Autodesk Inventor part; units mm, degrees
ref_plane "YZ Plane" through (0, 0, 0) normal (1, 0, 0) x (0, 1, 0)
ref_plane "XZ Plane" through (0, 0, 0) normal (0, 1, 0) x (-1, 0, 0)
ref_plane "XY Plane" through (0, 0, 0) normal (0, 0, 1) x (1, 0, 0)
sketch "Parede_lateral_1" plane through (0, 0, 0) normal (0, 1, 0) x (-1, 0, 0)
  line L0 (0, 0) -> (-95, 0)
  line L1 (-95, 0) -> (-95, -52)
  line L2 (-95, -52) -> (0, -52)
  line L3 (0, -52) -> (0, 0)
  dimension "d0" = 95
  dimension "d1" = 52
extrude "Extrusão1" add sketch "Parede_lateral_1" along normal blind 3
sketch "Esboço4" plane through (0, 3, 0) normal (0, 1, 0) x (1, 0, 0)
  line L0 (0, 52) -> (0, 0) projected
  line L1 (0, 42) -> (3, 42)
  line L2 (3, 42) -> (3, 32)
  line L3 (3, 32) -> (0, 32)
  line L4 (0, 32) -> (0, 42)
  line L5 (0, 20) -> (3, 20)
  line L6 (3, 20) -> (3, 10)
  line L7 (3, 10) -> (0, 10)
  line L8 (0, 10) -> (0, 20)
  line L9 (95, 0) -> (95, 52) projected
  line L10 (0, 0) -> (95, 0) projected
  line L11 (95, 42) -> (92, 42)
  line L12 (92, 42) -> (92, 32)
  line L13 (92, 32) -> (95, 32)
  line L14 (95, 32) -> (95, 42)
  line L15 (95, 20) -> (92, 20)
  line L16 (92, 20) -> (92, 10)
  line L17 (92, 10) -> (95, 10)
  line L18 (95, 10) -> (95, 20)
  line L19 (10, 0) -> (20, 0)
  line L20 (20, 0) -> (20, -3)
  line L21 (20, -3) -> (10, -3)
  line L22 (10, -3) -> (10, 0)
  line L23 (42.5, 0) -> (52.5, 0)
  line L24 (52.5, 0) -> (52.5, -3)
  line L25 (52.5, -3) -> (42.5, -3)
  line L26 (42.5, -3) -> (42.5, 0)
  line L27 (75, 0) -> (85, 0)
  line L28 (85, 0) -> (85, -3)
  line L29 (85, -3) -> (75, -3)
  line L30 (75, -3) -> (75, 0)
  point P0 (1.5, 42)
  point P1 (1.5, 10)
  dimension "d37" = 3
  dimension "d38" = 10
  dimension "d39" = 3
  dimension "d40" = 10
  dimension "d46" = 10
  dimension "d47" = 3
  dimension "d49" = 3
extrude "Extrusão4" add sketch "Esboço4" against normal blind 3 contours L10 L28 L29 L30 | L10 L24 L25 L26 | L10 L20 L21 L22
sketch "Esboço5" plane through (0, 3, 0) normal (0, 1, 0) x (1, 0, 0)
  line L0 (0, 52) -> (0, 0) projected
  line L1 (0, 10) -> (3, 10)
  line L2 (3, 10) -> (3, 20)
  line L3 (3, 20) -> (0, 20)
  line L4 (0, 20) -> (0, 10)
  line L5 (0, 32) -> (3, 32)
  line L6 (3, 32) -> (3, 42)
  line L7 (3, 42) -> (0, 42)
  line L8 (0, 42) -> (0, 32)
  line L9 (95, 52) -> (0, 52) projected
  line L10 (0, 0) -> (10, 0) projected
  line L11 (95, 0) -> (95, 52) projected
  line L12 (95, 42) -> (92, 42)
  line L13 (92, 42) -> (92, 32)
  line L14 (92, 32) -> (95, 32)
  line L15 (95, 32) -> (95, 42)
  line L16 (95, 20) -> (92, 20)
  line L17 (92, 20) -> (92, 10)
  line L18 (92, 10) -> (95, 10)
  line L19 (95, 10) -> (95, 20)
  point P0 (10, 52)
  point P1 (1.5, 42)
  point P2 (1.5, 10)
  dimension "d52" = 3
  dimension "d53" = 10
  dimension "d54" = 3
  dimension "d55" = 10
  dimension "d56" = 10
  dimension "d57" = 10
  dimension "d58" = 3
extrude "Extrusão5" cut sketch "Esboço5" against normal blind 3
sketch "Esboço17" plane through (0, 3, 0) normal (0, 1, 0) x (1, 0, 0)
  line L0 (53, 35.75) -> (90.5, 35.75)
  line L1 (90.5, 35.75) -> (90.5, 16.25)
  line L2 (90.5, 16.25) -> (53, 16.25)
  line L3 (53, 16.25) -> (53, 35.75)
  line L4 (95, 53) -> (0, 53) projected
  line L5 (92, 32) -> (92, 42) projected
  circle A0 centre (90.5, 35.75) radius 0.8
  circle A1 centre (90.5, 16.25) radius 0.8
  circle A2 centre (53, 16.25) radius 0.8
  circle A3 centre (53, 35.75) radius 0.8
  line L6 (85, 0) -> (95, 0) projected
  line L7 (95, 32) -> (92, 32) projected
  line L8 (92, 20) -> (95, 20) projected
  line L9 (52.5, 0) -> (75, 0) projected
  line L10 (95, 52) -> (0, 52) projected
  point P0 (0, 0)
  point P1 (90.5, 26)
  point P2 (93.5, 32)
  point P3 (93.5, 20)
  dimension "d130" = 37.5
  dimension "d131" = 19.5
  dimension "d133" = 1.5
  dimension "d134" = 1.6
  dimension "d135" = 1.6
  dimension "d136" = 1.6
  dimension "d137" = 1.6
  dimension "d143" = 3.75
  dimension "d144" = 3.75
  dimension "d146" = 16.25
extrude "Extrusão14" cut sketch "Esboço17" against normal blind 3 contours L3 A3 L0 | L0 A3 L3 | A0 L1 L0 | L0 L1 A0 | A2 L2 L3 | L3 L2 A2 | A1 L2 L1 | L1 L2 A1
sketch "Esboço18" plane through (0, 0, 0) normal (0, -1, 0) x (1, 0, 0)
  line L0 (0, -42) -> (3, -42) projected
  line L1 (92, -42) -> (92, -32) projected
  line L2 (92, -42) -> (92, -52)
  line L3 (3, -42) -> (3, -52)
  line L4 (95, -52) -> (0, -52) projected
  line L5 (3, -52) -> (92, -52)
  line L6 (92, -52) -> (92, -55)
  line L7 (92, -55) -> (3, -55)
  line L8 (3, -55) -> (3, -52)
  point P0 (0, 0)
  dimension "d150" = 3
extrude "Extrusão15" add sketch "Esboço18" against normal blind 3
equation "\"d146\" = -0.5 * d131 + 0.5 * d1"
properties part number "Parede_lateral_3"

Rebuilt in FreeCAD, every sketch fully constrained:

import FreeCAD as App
import Part
import Sketcher

V = App.Vector
Q = App.Units.Quantity

doc = App.newDocument("Part")
body = doc.addObject("PartDesign::Body", "Body")

# Sketch on XZ plane
sketch1 = doc.addObject("Sketcher::SketchObject", "Sketch")
body.addObject(sketch1)
sketch1.AttachmentSupport = (doc.XZ_Plane, [""])
sketch1.MapMode = "FlatFace"
sketch1.addGeometry(Part.LineSegment(V(0, -52, 0), V(0, 0, 0)), False)
sketch1.addGeometry(Part.LineSegment(V(0, 0, 0), V(95, 0, 0)), False)
sketch1.addGeometry(Part.LineSegment(V(95, 0, 0), V(95, -52, 0)), False)
sketch1.addGeometry(Part.LineSegment(V(95, -52, 0), V(0, -52, 0)), False)
sketch1.addConstraint(Sketcher.Constraint("Coincident", 0, 2, 1, 1))
sketch1.addConstraint(Sketcher.Constraint("Coincident", 1, 2, 2, 1))
sketch1.addConstraint(Sketcher.Constraint("Coincident", 2, 2, 3, 1))
sketch1.addConstraint(Sketcher.Constraint("Coincident", 3, 2, 0, 1))
sketch1.addConstraint(Sketcher.Constraint("Vertical", 0))
sketch1.addConstraint(Sketcher.Constraint("Horizontal", 1))
sketch1.addConstraint(Sketcher.Constraint("Vertical", 2))
sketch1.addConstraint(Sketcher.Constraint("Horizontal", 3))
sketch1.addConstraint(Sketcher.Constraint("Coincident", 0, 2, -1, 1))
sketch1.addConstraint(Sketcher.Constraint("DistanceX", 1, 1, 1, 2, Q("95 mm")))
sketch1.addConstraint(Sketcher.Constraint("DistanceY", 0, 1, 0, 2, Q("52 mm")))
pad1 = doc.addObject("PartDesign::Pad", "Pad")
body.addObject(pad1)
pad1.Profile = sketch1
pad1.Length = 3
pad1.Reversed = True

# Sketch on XZ plane
sketch2 = doc.addObject("Sketcher::SketchObject", "Sketch001")
body.addObject(sketch2)
sketch2.AttachmentSupport = (doc.XZ_Plane, [""])
sketch2.MapMode = "FlatFace"
sketch2.AttachmentOffset = App.Placement(V(0, 0, -3), App.Rotation())
sketch2.addGeometry(Part.LineSegment(V(85, 0, 0), V(75, 0, 0)), False)
sketch2.addGeometry(Part.LineSegment(V(75, 0, 0), V(75, 3, 0)), False)
sketch2.addGeometry(Part.LineSegment(V(75, 3, 0), V(85, 3, 0)), False)
sketch2.addGeometry(Part.LineSegment(V(85, 3, 0), V(85, 0, 0)), False)
sketch2.addGeometry(Part.LineSegment(V(52.5, 0, 0), V(42.5, 0, 0)), False)
sketch2.addGeometry(Part.LineSegment(V(42.5, 0, 0), V(42.5, 3, 0)), False)
sketch2.addGeometry(Part.LineSegment(V(42.5, 3, 0), V(52.5, 3, 0)), False)
sketch2.addGeometry(Part.LineSegment(V(52.5, 3, 0), V(52.5, 0, 0)), False)
sketch2.addGeometry(Part.LineSegment(V(20, 0, 0), V(10, 0, 0)), False)
sketch2.addGeometry(Part.LineSegment(V(10, 0, 0), V(10, 3, 0)), False)
sketch2.addGeometry(Part.LineSegment(V(10, 3, 0), V(20, 3, 0)), False)
sketch2.addGeometry(Part.LineSegment(V(20, 3, 0), V(20, 0, 0)), False)
sketch2.addConstraint(Sketcher.Constraint("Coincident", 0, 2, 1, 1))
sketch2.addConstraint(Sketcher.Constraint("Coincident", 1, 2, 2, 1))
sketch2.addConstraint(Sketcher.Constraint("Coincident", 2, 2, 3, 1))
sketch2.addConstraint(Sketcher.Constraint("Coincident", 3, 2, 0, 1))
sketch2.addConstraint(Sketcher.Constraint("Coincident", 4, 2, 5, 1))
sketch2.addConstraint(Sketcher.Constraint("Coincident", 5, 2, 6, 1))
sketch2.addConstraint(Sketcher.Constraint("Coincident", 6, 2, 7, 1))
sketch2.addConstraint(Sketcher.Constraint("Coincident", 7, 2, 4, 1))
sketch2.addConstraint(Sketcher.Constraint("Coincident", 8, 2, 9, 1))
sketch2.addConstraint(Sketcher.Constraint("Coincident", 9, 2, 10, 1))
sketch2.addConstraint(Sketcher.Constraint("Coincident", 10, 2, 11, 1))
sketch2.addConstraint(Sketcher.Constraint("Coincident", 11, 2, 8, 1))
sketch2.addConstraint(Sketcher.Constraint("Horizontal", 0))
sketch2.addConstraint(Sketcher.Constraint("Vertical", 1))
sketch2.addConstraint(Sketcher.Constraint("Horizontal", 2))
sketch2.addConstraint(Sketcher.Constraint("Vertical", 3))
sketch2.addConstraint(Sketcher.Constraint("Horizontal", 4))
sketch2.addConstraint(Sketcher.Constraint("Vertical", 5))
sketch2.addConstraint(Sketcher.Constraint("Horizontal", 6))
sketch2.addConstraint(Sketcher.Constraint("Vertical", 7))
sketch2.addConstraint(Sketcher.Constraint("Horizontal", 8))
sketch2.addConstraint(Sketcher.Constraint("Vertical", 9))
sketch2.addConstraint(Sketcher.Constraint("Horizontal", 10))
sketch2.addConstraint(Sketcher.Constraint("Vertical", 11))
sketch2.addConstraint(Sketcher.Constraint("PointOnObject", 0, 2, -1))
sketch2.addConstraint(Sketcher.Constraint("PointOnObject", 4, 2, -1))
sketch2.addConstraint(Sketcher.Constraint("PointOnObject", 8, 2, -1))
sketch2.addConstraint(Sketcher.Constraint("Horizontal", 2, 2, 5, 2))
sketch2.addConstraint(Sketcher.Constraint("Horizontal", 6, 2, 9, 2))
sketch2.addConstraint(Sketcher.Constraint("Equal", 2, 4))
sketch2.addConstraint(Sketcher.Constraint("Equal", 6, 8))
sketch2.addConstraint(Sketcher.Constraint("DistanceX", 0, 2, 0, 1, Q("10 mm")))
sketch2.addConstraint(Sketcher.Constraint("DistanceY", 1, 1, 1, 2, Q("3 mm")))
sketch2.addConstraint(Sketcher.Constraint("DistanceX", -1, 1, 8, 2, Q("10 mm")))
sketch2.addConstraint(Sketcher.Constraint("DistanceX", -1, 1, 0, 2, Q("75 mm")))
sketch2.addConstraint(Sketcher.Constraint("DistanceX", -1, 1, 4, 2, Q("42.5 mm")))
pad2 = doc.addObject("PartDesign::Pad", "Pad001")
body.addObject(pad2)
pad2.Profile = sketch2
pad2.Length = 3

# Sketch on XZ plane
sketch3 = doc.addObject("Sketcher::SketchObject", "Sketch002")
body.addObject(sketch3)
sketch3.AttachmentSupport = (doc.XZ_Plane, [""])
sketch3.MapMode = "FlatFace"
sketch3.AttachmentOffset = App.Placement(V(0, 0, -3), App.Rotation())
sketch3.addGeometry(Part.LineSegment(V(3, -20, 0), V(0, -20, 0)), False)
sketch3.addGeometry(Part.LineSegment(V(0, -20, 0), V(0, -10, 0)), False)
sketch3.addGeometry(Part.LineSegment(V(0, -10, 0), V(3, -10, 0)), False)
sketch3.addGeometry(Part.LineSegment(V(3, -10, 0), V(3, -20, 0)), False)
sketch3.addGeometry(Part.LineSegment(V(3, -42, 0), V(0, -42, 0)), False)
sketch3.addGeometry(Part.LineSegment(V(0, -42, 0), V(0, -32, 0)), False)
sketch3.addGeometry(Part.LineSegment(V(0, -32, 0), V(3, -32, 0)), False)
sketch3.addGeometry(Part.LineSegment(V(3, -32, 0), V(3, -42, 0)), False)
sketch3.addGeometry(Part.LineSegment(V(95, -10, 0), V(95, -20, 0)), False)
sketch3.addGeometry(Part.LineSegment(V(95, -20, 0), V(92, -20, 0)), False)
sketch3.addGeometry(Part.LineSegment(V(92, -20, 0), V(92, -10, 0)), False)
sketch3.addGeometry(Part.LineSegment(V(92, -10, 0), V(95, -10, 0)), False)
sketch3.addGeometry(Part.LineSegment(V(95, -32, 0), V(95, -42, 0)), False)
sketch3.addGeometry(Part.LineSegment(V(95, -42, 0), V(92, -42, 0)), False)
sketch3.addGeometry(Part.LineSegment(V(92, -42, 0), V(92, -32, 0)), False)
sketch3.addGeometry(Part.LineSegment(V(92, -32, 0), V(95, -32, 0)), False)
sketch3.addConstraint(Sketcher.Constraint("Coincident", 0, 2, 1, 1))
sketch3.addConstraint(Sketcher.Constraint("Coincident", 1, 2, 2, 1))
sketch3.addConstraint(Sketcher.Constraint("Coincident", 2, 2, 3, 1))
sketch3.addConstraint(Sketcher.Constraint("Coincident", 3, 2, 0, 1))
sketch3.addConstraint(Sketcher.Constraint("Coincident", 4, 2, 5, 1))
sketch3.addConstraint(Sketcher.Constraint("Coincident", 5, 2, 6, 1))
sketch3.addConstraint(Sketcher.Constraint("Coincident", 6, 2, 7, 1))
sketch3.addConstraint(Sketcher.Constraint("Coincident", 7, 2, 4, 1))
sketch3.addConstraint(Sketcher.Constraint("Coincident", 8, 2, 9, 1))
sketch3.addConstraint(Sketcher.Constraint("Coincident", 9, 2, 10, 1))
sketch3.addConstraint(Sketcher.Constraint("Coincident", 10, 2, 11, 1))
sketch3.addConstraint(Sketcher.Constraint("Coincident", 11, 2, 8, 1))
sketch3.addConstraint(Sketcher.Constraint("Coincident", 12, 2, 13, 1))
sketch3.addConstraint(Sketcher.Constraint("Coincident", 13, 2, 14, 1))
sketch3.addConstraint(Sketcher.Constraint("Coincident", 14, 2, 15, 1))
sketch3.addConstraint(Sketcher.Constraint("Coincident", 15, 2, 12, 1))
sketch3.addConstraint(Sketcher.Constraint("Horizontal", 0))
sketch3.addConstraint(Sketcher.Constraint("Vertical", 1))
sketch3.addConstraint(Sketcher.Constraint("Horizontal", 2))
sketch3.addConstraint(Sketcher.Constraint("Vertical", 3))
sketch3.addConstraint(Sketcher.Constraint("Horizontal", 4))
sketch3.addConstraint(Sketcher.Constraint("Vertical", 5))
sketch3.addConstraint(Sketcher.Constraint("Horizontal", 6))
sketch3.addConstraint(Sketcher.Constraint("Vertical", 7))
sketch3.addConstraint(Sketcher.Constraint("Vertical", 8))
sketch3.addConstraint(Sketcher.Constraint("Horizontal", 9))
sketch3.addConstraint(Sketcher.Constraint("Vertical", 10))
sketch3.addConstraint(Sketcher.Constraint("Horizontal", 11))
sketch3.addConstraint(Sketcher.Constraint("Vertical", 12))
sketch3.addConstraint(Sketcher.Constraint("Horizontal", 13))
sketch3.addConstraint(Sketcher.Constraint("Vertical", 14))
sketch3.addConstraint(Sketcher.Constraint("Horizontal", 15))
sketch3.addConstraint(Sketcher.Constraint("PointOnObject", 0, 2, -2))
sketch3.addConstraint(Sketcher.Constraint("PointOnObject", 4, 2, -2))
sketch3.addConstraint(Sketcher.Constraint("Horizontal", 3, 2, 8, 2))
sketch3.addConstraint(Sketcher.Constraint("Horizontal", 2, 2, 10, 2))
sketch3.addConstraint(Sketcher.Constraint("Horizontal", 7, 2, 12, 2))
sketch3.addConstraint(Sketcher.Constraint("Horizontal", 6, 2, 14, 2))
sketch3.addConstraint(Sketcher.Constraint("Vertical", 3, 2, 6, 2))
sketch3.addConstraint(Sketcher.Constraint("Vertical", 11, 2, 12, 2))
sketch3.addConstraint(Sketcher.Constraint("Vertical", 10, 2, 13, 2))
sketch3.addConstraint(Sketcher.Constraint("Equal", 6, 9))
sketch3.addConstraint(Sketcher.Constraint("Equal", 3, 5))
sketch3.addConstraint(Sketcher.Constraint("DistanceX", 0, 2, 0, 1, Q("3 mm")))
sketch3.addConstraint(Sketcher.Constraint("DistanceY", 1, 1, 1, 2, Q("10 mm")))
sketch3.addConstraint(Sketcher.Constraint("DistanceY", 1, 2, -1, 1, Q("10 mm")))
sketch3.addConstraint(Sketcher.Constraint("DistanceY", 4, 2, -1, 1, Q("42 mm")))
sketch3.addConstraint(Sketcher.Constraint("DistanceX", -1, 1, 8, 2, Q("95 mm")))
pocket1 = doc.addObject("PartDesign::Pocket", "Pocket")
body.addObject(pocket1)
pocket1.Profile = sketch3
pocket1.Length = 3
pocket1.Reversed = True

# Sketch on XZ plane
sketch4 = doc.addObject("Sketcher::SketchObject", "Sketch003")
body.addObject(sketch4)
sketch4.AttachmentSupport = (doc.XZ_Plane, [""])
sketch4.MapMode = "FlatFace"
sketch4.AttachmentOffset = App.Placement(V(0, 0, -3), App.Rotation())
sketch4.addGeometry(Part.Circle(V(53, -35.8, 0), V(0, 0, 1), 0.8), False)
sketch4.addGeometry(Part.Circle(V(90.5, -35.8, 0), V(0, 0, 1), 0.8), False)
sketch4.addGeometry(Part.Circle(V(53, -16.2, 0), V(0, 0, 1), 0.8), False)
sketch4.addGeometry(Part.Circle(V(90.5, -16.2, 0), V(0, 0, 1), 0.8), False)
sketch4.addConstraint(Sketcher.Constraint("Equal", 0, 1))
sketch4.addConstraint(Sketcher.Constraint("Equal", 1, 2))
sketch4.addConstraint(Sketcher.Constraint("Equal", 2, 3))
sketch4.addConstraint(Sketcher.Constraint("Horizontal", 0, 3, 1, 3))
sketch4.addConstraint(Sketcher.Constraint("Horizontal", 2, 3, 3, 3))
sketch4.addConstraint(Sketcher.Constraint("Vertical", 0, 3, 2, 3))
sketch4.addConstraint(Sketcher.Constraint("Vertical", 1, 3, 3, 3))
sketch4.addConstraint(Sketcher.Constraint("Diameter", 0, Q("1.6 mm")))
sketch4.addConstraint(Sketcher.Constraint("DistanceX", 0, 3, 1, 3, Q("37.5 mm")))
sketch4.addConstraint(Sketcher.Constraint("DistanceY", 0, 3, 2, 3, Q("19.5 mm")))
sketch4.addConstraint(Sketcher.Constraint("DistanceY", 2, 3, -1, 1, Q("16.25 mm")))
sketch4.addConstraint(Sketcher.Constraint("DistanceX", -1, 1, 0, 3, Q("53 mm")))
pocket2 = doc.addObject("PartDesign::Pocket", "Pocket001")
body.addObject(pocket2)
pocket2.Profile = sketch4
pocket2.Length = 3
pocket2.Reversed = True

# Sketch on XZ plane
sketch5 = doc.addObject("Sketcher::SketchObject", "Sketch004")
body.addObject(sketch5)
sketch5.AttachmentSupport = (doc.XZ_Plane, [""])
sketch5.MapMode = "FlatFace"
sketch5.addGeometry(Part.LineSegment(V(92, -55, 0), V(92, -52, 0)), False)
sketch5.addGeometry(Part.LineSegment(V(92, -52, 0), V(3, -52, 0)), False)
sketch5.addGeometry(Part.LineSegment(V(3, -52, 0), V(3, -55, 0)), False)
sketch5.addGeometry(Part.LineSegment(V(3, -55, 0), V(92, -55, 0)), False)
sketch5.addConstraint(Sketcher.Constraint("Coincident", 0, 2, 1, 1))
sketch5.addConstraint(Sketcher.Constraint("Coincident", 1, 2, 2, 1))
sketch5.addConstraint(Sketcher.Constraint("Coincident", 2, 2, 3, 1))
sketch5.addConstraint(Sketcher.Constraint("Coincident", 3, 2, 0, 1))
sketch5.addConstraint(Sketcher.Constraint("Vertical", 0))
sketch5.addConstraint(Sketcher.Constraint("Horizontal", 1))
sketch5.addConstraint(Sketcher.Constraint("Vertical", 2))
sketch5.addConstraint(Sketcher.Constraint("Horizontal", 3))
sketch5.addConstraint(Sketcher.Constraint("DistanceY", 0, 1, 0, 2, Q("3 mm")))
sketch5.addConstraint(Sketcher.Constraint("DistanceX", -1, 1, 1, 2, Q("3 mm")))
sketch5.addConstraint(Sketcher.Constraint("DistanceX", 1, 2, 1, 1, Q("89 mm")))
sketch5.addConstraint(Sketcher.Constraint("DistanceY", 0, 2, -1, 1, Q("52 mm")))
pad3 = doc.addObject("PartDesign::Pad", "Pad002")
body.addObject(pad3)
pad3.Profile = sketch5
pad3.Length = 3
pad3.Reversed = True

doc.recompute()
